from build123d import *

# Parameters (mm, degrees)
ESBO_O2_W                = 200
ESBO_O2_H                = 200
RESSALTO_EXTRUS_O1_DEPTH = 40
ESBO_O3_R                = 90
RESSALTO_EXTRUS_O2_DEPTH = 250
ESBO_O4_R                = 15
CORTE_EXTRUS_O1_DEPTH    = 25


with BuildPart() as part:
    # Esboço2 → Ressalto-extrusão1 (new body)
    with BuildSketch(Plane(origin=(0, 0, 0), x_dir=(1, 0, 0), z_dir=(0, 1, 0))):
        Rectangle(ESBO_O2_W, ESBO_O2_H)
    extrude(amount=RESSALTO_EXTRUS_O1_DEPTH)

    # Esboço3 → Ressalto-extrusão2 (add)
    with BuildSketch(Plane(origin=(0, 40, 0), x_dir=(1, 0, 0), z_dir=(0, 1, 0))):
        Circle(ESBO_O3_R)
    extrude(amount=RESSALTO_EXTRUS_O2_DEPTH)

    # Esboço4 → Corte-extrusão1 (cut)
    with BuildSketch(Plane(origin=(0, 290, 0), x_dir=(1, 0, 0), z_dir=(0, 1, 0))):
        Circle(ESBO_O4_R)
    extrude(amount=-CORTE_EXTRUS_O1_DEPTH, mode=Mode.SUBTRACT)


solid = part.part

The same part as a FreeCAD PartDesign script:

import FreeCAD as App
import Part
import Sketcher

V = App.Vector
Q = App.Units.Quantity

doc = App.newDocument("Part")
body = doc.addObject("PartDesign::Body", "Body")

sketch1 = body.newObject("Sketcher::SketchObject", "Sketch")
sketch1.AttachmentSupport = (doc.getObject("XZ_Plane"), [""])
sketch1.MapMode = "FlatFace"
sketch1.addGeometry([
    Part.LineSegment(V(-100, -100, 0), V(-100, 100, 0)),
    Part.LineSegment(V(-100, 100, 0), V(100, 100, 0)),
    Part.LineSegment(V(100, 100, 0), V(100, -100, 0)),
    Part.LineSegment(V(100, -100, 0), V(-100, -100, 0)),
], False)
sketch1.addConstraint([
    Sketcher.Constraint("Coincident", 0, 2, 1, 1),
    Sketcher.Constraint("Coincident", 1, 2, 2, 1),
    Sketcher.Constraint("Coincident", 2, 2, 3, 1),
    Sketcher.Constraint("Coincident", 3, 2, 0, 1),
    Sketcher.Constraint("Vertical", 0),
    Sketcher.Constraint("Horizontal", 1),
    Sketcher.Constraint("Vertical", 2),
    Sketcher.Constraint("Horizontal", 3),
    Sketcher.Constraint("Symmetric", 0, 2, 2, 2, -1, 1),
    Sketcher.Constraint("Equal", 3, 0),
    Sketcher.Constraint("DistanceX", 1, 1, 1, 2, Q("200 mm")),
])
pad1 = body.newObject("PartDesign::Pad", "Pad")
pad1.Profile = sketch1
pad1.Length = 40
pad1.Reversed = True

sketch2 = body.newObject("Sketcher::SketchObject", "Sketch001")
sketch2.AttachmentSupport = (doc.getObject("XZ_Plane"), [""])
sketch2.MapMode = "FlatFace"
sketch2.AttachmentOffset = App.Placement(V(0, 0, -40), App.Rotation())
sketch2.addGeometry(Part.Circle(V(0, 0, 0), V(0, 0, 1), 90), False)
sketch2.addConstraint([
    Sketcher.Constraint("Coincident", 0, 3, -1, 1),
    Sketcher.Constraint("Diameter", 0, Q("180 mm")),
])
pad2 = body.newObject("PartDesign::Pad", "Pad001")
pad2.Profile = sketch2
pad2.Length = 250
pad2.Reversed = True

sketch3 = body.newObject("Sketcher::SketchObject", "Sketch002")
sketch3.AttachmentSupport = (doc.getObject("XZ_Plane"), [""])
sketch3.MapMode = "FlatFace"
sketch3.AttachmentOffset = App.Placement(V(0, 0, -290), App.Rotation())
sketch3.addGeometry(Part.Circle(V(0, 0, 0), V(0, 0, 1), 15), False)
sketch3.addConstraint([
    Sketcher.Constraint("Coincident", 0, 3, -1, 1),
    Sketcher.Constraint("Diameter", 0, Q("30 mm")),
])
pocket1 = body.newObject("PartDesign::Pocket", "Pocket")
pocket1.Profile = sketch3
pocket1.Length = 25
pocket1.Reversed = True

doc.recompute()
